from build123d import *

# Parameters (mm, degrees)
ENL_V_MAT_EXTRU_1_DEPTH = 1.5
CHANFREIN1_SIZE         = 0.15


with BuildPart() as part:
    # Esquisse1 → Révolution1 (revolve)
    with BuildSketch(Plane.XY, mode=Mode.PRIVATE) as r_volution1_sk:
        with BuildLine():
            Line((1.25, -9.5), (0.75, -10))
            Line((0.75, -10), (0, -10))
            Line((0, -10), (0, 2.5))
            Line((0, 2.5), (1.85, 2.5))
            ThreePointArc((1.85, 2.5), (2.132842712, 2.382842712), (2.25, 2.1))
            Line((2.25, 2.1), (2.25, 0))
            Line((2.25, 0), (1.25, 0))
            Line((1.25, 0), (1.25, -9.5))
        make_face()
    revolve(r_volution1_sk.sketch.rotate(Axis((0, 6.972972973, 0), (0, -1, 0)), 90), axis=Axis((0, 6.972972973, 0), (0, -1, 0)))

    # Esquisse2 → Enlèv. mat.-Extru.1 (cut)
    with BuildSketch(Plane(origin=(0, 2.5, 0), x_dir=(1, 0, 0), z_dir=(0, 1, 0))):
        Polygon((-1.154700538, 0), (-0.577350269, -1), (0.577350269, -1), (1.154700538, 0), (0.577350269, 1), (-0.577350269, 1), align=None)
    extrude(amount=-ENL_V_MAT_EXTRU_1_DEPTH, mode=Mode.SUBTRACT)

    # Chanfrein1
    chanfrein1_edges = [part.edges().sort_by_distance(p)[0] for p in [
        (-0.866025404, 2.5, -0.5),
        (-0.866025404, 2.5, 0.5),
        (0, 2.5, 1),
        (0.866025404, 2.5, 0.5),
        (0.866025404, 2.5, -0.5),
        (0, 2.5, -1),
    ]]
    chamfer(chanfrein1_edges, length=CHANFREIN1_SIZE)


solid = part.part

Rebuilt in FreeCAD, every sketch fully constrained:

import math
import FreeCAD as App
import Part
import Sketcher

V = App.Vector
Q = App.Units.Quantity


def edges_at(feature, points):
    """Names of the edges that pass closest to the given points."""
    edges = feature.Shape.Edges
    near = lambda p: min(range(len(edges)), key=lambda i: edges[i].distToShape(Part.Vertex(*p))[0])
    return sorted({f"Edge{near(p) + 1}" for p in points})


def add_polygon(sketch, points):
    """Adds a closed chain of lines whose ends are joined by coincident constraints."""
    first, n = sketch.GeometryCount, len(points)
    for a, b in zip(points, points[1:] + points[:1]):
        sketch.addGeometry(Part.LineSegment(App.Vector(*a, 0), App.Vector(*b, 0)), False)
    for i in range(n):
        sketch.addConstraint(Sketcher.Constraint("Coincident", first + i, 2, first + (i + 1) % n, 1))

doc = App.newDocument("Part")
body = doc.addObject("PartDesign::Body", "Body")

# Sketch on XY plane
sketch1 = body.newObject("Sketcher::SketchObject", "Sketch")
sketch1.AttachmentSupport = (doc.getObject("XY_Plane"), [""])
sketch1.MapMode = "FlatFace"
sketch1.addGeometry([
    Part.LineSegment(V(0.75, -10, 0), V(1.25, -9.5, 0)),  # 0
    Part.LineSegment(V(1.25, -9.5, 0), V(1.25, 0, 0)),  # 1
    Part.LineSegment(V(1.25, 0, 0), V(2.25, 0, 0)),  # 2
    Part.LineSegment(V(2.25, 0, 0), V(2.25, 2.1, 0)),  # 3
    Part.ArcOfCircle(Part.Circle(V(1.85, 2.1, 0), V(0, 0, 1), 0.4), math.radians(0), math.radians(90)),  # 4
    Part.LineSegment(V(1.85, 2.5, 0), V(0, 2.5, 0)),  # 5
    Part.LineSegment(V(0, 2.5, 0), V(0, -10, 0)),  # 6
    Part.LineSegment(V(0, -10, 0), V(0.75, -10, 0)),  # 7
], False)
sketch1.addConstraint([
    Sketcher.Constraint("Coincident", 0, 2, 1, 1),
    Sketcher.Constraint("Coincident", 1, 2, 2, 1),
    Sketcher.Constraint("Coincident", 2, 2, 3, 1),
    Sketcher.Constraint("Tangent", 3, 2, 4, 1),
    Sketcher.Constraint("Tangent", 4, 2, 5, 1),
    Sketcher.Constraint("Coincident", 5, 2, 6, 1),
    Sketcher.Constraint("Coincident", 6, 2, 7, 1),
    Sketcher.Constraint("Coincident", 7, 2, 0, 1),
    Sketcher.Constraint("Vertical", 1),
    Sketcher.Constraint("Horizontal", 2),
    Sketcher.Constraint("Vertical", 3),
    Sketcher.Constraint("Horizontal", 5),
    Sketcher.Constraint("Vertical", 6),
    Sketcher.Constraint("Horizontal", 7),
    Sketcher.Constraint("PointOnObject", 1, 2, -1),
    Sketcher.Constraint("PointOnObject", 5, 2, -2),
    Sketcher.Constraint("Radius", 4, Q("0.4 mm")),
    Sketcher.Constraint("DistanceX", 2, 1, 2, 2, Q("1 mm")),
    Sketcher.Constraint("Angle", 0, Q("45 deg")),
    Sketcher.Constraint("DistanceY", 1, 1, 1, 2, Q("9.5 mm")),
    Sketcher.Constraint("DistanceY", 3, 1, 3, 2, Q("2.1 mm")),
    Sketcher.Constraint("DistanceY", 6, 2, 6, 1, Q("12.5 mm")),
    Sketcher.Constraint("DistanceX", 5, 2, 5, 1, Q("1.85 mm")),
])
revolution = body.newObject("PartDesign::Revolution", "Revolution")
revolution.Profile = sketch1
revolution.ReferenceAxis = (sketch1, ["V_Axis"])
revolution.Angle = 360

# Sketch on XZ plane
sketch2 = body.newObject("Sketcher::SketchObject", "Sketch001")
sketch2.AttachmentSupport = (doc.getObject("XZ_Plane"), [""])
sketch2.MapMode = "FlatFace"
sketch2.AttachmentOffset = App.Placement(V(0, 0, -2.5), App.Rotation())
add_polygon(sketch2, [(-1.2, 0), (-0.6, 1), (0.6, 1), (1.2, 0), (0.6, -1), (-0.6, -1)])  # lines 0-5
sketch2.addConstraint([
    Sketcher.Constraint("Horizontal", 1),
    Sketcher.Constraint("Horizontal", 4),
    Sketcher.Constraint("Symmetric", 0, 2, 3, 2, -1, 1),
    Sketcher.Constraint("Symmetric", 2, 2, 5, 2, -1, 1),
    Sketcher.Constraint("PointOnObject", 2, 2, -1),
    Sketcher.Constraint("Parallel", 2, 5),
    Sketcher.Constraint("Vertical", 1, 2, 3, 2),
    Sketcher.Constraint("Angle", 0, Q("60 deg")),
    Sketcher.Constraint("DistanceY", -1, 1, 0, 2, Q("1 mm")),
    Sketcher.Constraint("DistanceX", 1, 1, 1, 2, Q("1.154701 mm")),
])
pocket1 = body.newObject("PartDesign::Pocket", "Pocket")
pocket1.Profile = sketch2
pocket1.Length = 1.5
pocket1.Reversed = True
doc.recompute()

chamfer = body.newObject("PartDesign::Chamfer", "Chamfer")
chamfer.Base = (pocket1, edges_at(pocket1, [
    (-0.866, 2.5, -0.5),
    (-0.866, 2.5, 0.5),
    (0, 2.5, 1),
    (0.866, 2.5, 0.5),
    (0.866, 2.5, -0.5),
    (0, 2.5, -1),
]))
chamfer.Size = 0.15

doc.recompute()
